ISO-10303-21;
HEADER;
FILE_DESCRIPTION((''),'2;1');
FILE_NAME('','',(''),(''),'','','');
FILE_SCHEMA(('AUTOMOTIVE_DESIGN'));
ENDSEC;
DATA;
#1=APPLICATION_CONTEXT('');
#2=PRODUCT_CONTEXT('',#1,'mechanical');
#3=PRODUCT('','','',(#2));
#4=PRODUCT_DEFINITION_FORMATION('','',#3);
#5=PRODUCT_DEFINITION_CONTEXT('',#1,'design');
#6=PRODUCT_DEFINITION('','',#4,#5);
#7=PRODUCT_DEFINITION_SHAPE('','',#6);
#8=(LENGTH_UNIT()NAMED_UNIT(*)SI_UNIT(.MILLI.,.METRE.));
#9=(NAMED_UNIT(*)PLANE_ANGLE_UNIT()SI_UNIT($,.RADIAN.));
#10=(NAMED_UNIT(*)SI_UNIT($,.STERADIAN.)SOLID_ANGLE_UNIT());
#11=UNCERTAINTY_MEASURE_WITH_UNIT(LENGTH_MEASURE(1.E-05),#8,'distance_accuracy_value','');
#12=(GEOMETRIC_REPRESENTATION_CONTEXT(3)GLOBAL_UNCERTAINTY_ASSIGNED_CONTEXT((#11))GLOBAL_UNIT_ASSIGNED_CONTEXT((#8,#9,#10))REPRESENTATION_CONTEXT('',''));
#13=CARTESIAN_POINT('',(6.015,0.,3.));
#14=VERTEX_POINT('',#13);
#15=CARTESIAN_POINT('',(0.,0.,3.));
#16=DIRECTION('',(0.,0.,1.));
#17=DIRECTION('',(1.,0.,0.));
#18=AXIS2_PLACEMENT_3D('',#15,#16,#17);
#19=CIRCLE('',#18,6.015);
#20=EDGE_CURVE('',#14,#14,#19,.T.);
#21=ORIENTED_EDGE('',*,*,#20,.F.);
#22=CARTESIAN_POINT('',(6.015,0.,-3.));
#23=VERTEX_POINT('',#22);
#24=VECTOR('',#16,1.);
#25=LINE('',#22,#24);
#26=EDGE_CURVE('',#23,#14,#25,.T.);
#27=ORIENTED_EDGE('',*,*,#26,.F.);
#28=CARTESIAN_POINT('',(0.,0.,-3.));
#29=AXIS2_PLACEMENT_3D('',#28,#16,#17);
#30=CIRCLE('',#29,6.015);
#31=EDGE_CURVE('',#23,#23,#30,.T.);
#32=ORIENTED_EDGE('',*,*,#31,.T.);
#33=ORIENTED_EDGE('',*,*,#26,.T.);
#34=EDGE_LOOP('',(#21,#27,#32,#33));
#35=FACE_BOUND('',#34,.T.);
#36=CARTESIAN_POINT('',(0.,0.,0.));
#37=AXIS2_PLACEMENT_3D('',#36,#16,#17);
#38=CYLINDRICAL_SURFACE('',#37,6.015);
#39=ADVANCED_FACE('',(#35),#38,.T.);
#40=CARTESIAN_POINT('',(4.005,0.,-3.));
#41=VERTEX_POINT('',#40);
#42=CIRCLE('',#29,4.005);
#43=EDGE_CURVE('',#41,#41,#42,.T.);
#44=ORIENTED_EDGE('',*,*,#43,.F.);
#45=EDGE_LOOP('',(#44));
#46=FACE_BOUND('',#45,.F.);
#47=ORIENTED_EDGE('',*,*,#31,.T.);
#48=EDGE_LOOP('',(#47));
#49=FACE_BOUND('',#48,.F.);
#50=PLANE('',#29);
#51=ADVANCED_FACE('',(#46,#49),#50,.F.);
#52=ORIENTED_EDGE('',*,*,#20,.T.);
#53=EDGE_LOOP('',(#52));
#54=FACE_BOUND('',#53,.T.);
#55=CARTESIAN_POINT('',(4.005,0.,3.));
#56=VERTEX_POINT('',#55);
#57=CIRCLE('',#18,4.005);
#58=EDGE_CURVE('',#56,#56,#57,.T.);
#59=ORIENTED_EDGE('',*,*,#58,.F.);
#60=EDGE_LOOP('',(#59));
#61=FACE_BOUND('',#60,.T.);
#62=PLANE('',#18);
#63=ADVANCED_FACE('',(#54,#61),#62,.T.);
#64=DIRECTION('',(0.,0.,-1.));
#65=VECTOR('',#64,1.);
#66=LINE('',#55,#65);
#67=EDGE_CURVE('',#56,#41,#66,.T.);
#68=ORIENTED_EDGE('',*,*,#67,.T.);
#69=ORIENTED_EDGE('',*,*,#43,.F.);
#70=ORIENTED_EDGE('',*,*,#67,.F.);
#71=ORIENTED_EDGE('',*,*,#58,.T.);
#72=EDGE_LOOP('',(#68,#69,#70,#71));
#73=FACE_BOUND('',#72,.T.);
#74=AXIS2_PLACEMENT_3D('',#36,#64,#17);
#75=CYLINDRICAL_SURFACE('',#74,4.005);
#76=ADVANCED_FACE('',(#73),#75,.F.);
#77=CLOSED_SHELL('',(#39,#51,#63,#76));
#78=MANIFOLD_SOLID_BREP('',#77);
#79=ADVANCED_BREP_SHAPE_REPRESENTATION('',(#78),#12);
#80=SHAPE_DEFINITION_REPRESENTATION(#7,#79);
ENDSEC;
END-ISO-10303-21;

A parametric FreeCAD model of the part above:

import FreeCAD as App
import Part
import Sketcher

doc = App.newDocument("Part")
body = doc.addObject("PartDesign::Body", "Body")

# Sketch on XY plane
sketch1 = doc.addObject("Sketcher::SketchObject", "Sketch")
body.addObject(sketch1)
sketch1.AttachmentSupport = (doc.XY_Plane, [""])
sketch1.MapMode = "FlatFace"
sketch1.addGeometry([
    Part.Circle(App.Vector(0, 0, 0), App.Vector(0, 0, 1), 6),
    Part.Circle(App.Vector(0, 0, 0), App.Vector(0, 0, 1), 4),
], False)
sketch1.addConstraint([
    Sketcher.Constraint("Coincident", 0, 3, -1, 1),
    Sketcher.Constraint("Coincident", 1, 3, -1, 1),
    Sketcher.Constraint("Diameter", 0, 12.03),
    Sketcher.Constraint("Diameter", 1, 8.01),
])
pad1 = doc.addObject("PartDesign::Pad", "Pad")
body.addObject(pad1)
pad1.Profile = sketch1
pad1.Length = 6
pad1.Midplane = True

doc.recompute()
